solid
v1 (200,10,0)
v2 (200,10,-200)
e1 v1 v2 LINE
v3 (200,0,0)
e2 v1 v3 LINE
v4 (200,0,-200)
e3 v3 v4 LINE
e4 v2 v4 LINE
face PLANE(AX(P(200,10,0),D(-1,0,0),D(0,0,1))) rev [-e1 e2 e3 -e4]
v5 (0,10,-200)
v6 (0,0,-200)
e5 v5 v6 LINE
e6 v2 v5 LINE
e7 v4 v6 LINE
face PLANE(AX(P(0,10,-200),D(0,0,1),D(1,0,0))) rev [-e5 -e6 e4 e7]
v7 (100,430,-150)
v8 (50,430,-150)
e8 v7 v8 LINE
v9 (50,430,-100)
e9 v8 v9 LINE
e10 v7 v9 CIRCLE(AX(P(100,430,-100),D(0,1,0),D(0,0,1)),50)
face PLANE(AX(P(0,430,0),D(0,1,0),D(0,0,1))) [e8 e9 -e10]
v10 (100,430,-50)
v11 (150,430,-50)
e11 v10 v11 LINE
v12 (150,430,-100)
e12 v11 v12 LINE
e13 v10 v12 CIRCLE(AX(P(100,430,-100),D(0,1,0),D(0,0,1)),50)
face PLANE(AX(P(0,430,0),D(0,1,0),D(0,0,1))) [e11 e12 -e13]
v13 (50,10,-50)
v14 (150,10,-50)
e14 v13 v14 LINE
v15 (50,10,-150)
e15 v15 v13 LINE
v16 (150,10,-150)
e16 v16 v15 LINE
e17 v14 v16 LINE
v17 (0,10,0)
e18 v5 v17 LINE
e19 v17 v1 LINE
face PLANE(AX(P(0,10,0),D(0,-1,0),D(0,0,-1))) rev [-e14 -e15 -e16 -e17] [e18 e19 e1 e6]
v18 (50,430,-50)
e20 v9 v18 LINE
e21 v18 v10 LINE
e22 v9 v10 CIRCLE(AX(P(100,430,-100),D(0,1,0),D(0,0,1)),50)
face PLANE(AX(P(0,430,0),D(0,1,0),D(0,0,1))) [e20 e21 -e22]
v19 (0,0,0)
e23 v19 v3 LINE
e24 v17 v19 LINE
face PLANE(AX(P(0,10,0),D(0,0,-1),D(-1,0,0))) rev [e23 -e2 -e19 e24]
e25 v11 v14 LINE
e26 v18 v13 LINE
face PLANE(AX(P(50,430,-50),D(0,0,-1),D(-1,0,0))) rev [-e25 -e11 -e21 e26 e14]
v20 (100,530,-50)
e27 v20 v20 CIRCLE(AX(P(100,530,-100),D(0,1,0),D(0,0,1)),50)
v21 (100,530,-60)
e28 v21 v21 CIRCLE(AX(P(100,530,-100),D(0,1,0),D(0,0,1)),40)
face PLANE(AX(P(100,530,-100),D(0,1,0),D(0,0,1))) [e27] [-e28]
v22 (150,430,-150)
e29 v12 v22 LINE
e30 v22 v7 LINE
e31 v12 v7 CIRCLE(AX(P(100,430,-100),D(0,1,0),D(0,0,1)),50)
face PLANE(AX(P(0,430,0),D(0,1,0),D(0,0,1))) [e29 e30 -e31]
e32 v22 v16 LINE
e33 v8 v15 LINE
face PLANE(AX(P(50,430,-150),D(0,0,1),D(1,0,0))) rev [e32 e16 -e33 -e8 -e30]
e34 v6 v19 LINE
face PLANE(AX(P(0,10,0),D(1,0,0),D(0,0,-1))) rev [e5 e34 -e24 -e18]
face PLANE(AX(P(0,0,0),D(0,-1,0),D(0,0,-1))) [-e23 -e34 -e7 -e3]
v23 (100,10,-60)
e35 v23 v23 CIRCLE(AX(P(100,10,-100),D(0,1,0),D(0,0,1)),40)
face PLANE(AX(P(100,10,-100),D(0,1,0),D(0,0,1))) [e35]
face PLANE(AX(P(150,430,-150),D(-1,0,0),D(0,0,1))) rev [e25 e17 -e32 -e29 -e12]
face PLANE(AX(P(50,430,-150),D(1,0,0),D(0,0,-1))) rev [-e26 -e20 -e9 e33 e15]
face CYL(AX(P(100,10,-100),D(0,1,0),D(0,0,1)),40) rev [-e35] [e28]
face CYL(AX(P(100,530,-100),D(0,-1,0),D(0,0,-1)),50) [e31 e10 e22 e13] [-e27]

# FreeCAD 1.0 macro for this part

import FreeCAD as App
import Part
import Sketcher
Q = App.Units.Quantity

doc = App.newDocument("Part")
body = doc.addObject("PartDesign::Body", "Body")

# Sketch on XZ plane
sketch1 = body.newObject("Sketcher::SketchObject", "Sketch")
sketch1.AttachmentSupport = (doc.getObject("XZ_Plane"), [""])
sketch1.MapMode = "FlatFace"
sketch1.addGeometry(Part.LineSegment(App.Vector(0, -200, 0), App.Vector(0, 0, 0)), False)
sketch1.addGeometry(Part.LineSegment(App.Vector(0, 0, 0), App.Vector(200, 0, 0)), False)
sketch1.addGeometry(Part.LineSegment(App.Vector(200, 0, 0), App.Vector(200, -200, 0)), False)
sketch1.addGeometry(Part.LineSegment(App.Vector(200, -200, 0), App.Vector(0, -200, 0)), False)
sketch1.addConstraint(Sketcher.Constraint("Coincident", 0, 2, 1, 1))
sketch1.addConstraint(Sketcher.Constraint("Coincident", 1, 2, 2, 1))
sketch1.addConstraint(Sketcher.Constraint("Coincident", 2, 2, 3, 1))
sketch1.addConstraint(Sketcher.Constraint("Coincident", 3, 2, 0, 1))
sketch1.addConstraint(Sketcher.Constraint("Vertical", 0))
sketch1.addConstraint(Sketcher.Constraint("Horizontal", 1))
sketch1.addConstraint(Sketcher.Constraint("Vertical", 2))
sketch1.addConstraint(Sketcher.Constraint("Horizontal", 3))
sketch1.addConstraint(Sketcher.Constraint("Coincident", 0, 2, -1, 1))
sketch1.addConstraint(Sketcher.Constraint("Equal", 3, 0))
sketch1.addConstraint(Sketcher.Constraint("DistanceX", 1, 1, 1, 2, Q("200 mm")))
pad1 = body.newObject("PartDesign::Pad", "Pad")
pad1.Profile = sketch1
pad1.Length = 10
pad1.Reversed = True

# Sketch on XZ plane
sketch2 = body.newObject("Sketcher::SketchObject", "Sketch001")
sketch2.AttachmentSupport = (doc.getObject("XZ_Plane"), [""])
sketch2.MapMode = "FlatFace"
sketch2.AttachmentOffset = App.Placement(App.Vector(0, 0, -10), App.Rotation())
sketch2.addGeometry(Part.LineSegment(App.Vector(50, -150, 0), App.Vector(50, -50, 0)), False)
sketch2.addGeometry(Part.LineSegment(App.Vector(50, -50, 0), App.Vector(150, -50, 0)), False)
sketch2.addGeometry(Part.LineSegment(App.Vector(150, -50, 0), App.Vector(150, -150, 0)), False)
sketch2.addGeometry(Part.LineSegment(App.Vector(150, -150, 0), App.Vector(50, -150, 0)), False)
sketch2.addConstraint(Sketcher.Constraint("Coincident", 0, 2, 1, 1))
sketch2.addConstraint(Sketcher.Constraint("Coincident", 1, 2, 2, 1))
sketch2.addConstraint(Sketcher.Constraint("Coincident", 2, 2, 3, 1))
sketch2.addConstraint(Sketcher.Constraint("Coincident", 3, 2, 0, 1))
sketch2.addConstraint(Sketcher.Constraint("Vertical", 0))
sketch2.addConstraint(Sketcher.Constraint("Horizontal", 1))
sketch2.addConstraint(Sketcher.Constraint("Vertical", 2))
sketch2.addConstraint(Sketcher.Constraint("Horizontal", 3))
sketch2.addConstraint(Sketcher.Constraint("Equal", 3, 0))
sketch2.addConstraint(Sketcher.Constraint("DistanceX", 1, 1, 1, 2, Q("100 mm")))
sketch2.addConstraint(Sketcher.Constraint("DistanceX", -1, 1, 0, 2, Q("50 mm")))
sketch2.addConstraint(Sketcher.Constraint("DistanceY", 0, 2, -1, 1, Q("50 mm")))
pad2 = body.newObject("PartDesign::Pad", "Pad001")
pad2.Profile = sketch2
pad2.Length = 420
pad2.Reversed = True

# Sketch on XZ plane
sketch3 = body.newObject("Sketcher::SketchObject", "Sketch002")
sketch3.AttachmentSupport = (doc.getObject("XZ_Plane"), [""])
sketch3.MapMode = "FlatFace"
sketch3.AttachmentOffset = App.Placement(App.Vector(0, 0, -430), App.Rotation())
sketch3.addGeometry(Part.Circle(App.Vector(100, -100, 0), App.Vector(0, 0, 1), 40), False)
sketch3.addConstraint(Sketcher.Constraint("Diameter", 0, Q("80 mm")))
sketch3.addConstraint(Sketcher.Constraint("DistanceX", -1, 1, 0, 3, Q("100 mm")))
sketch3.addConstraint(Sketcher.Constraint("DistanceY", 0, 3, -1, 1, Q("100 mm")))
pocket1 = body.newObject("PartDesign::Pocket", "Pocket")
pocket1.Profile = sketch3
pocket1.Length = 420
pocket1.Reversed = True

# Sketch on XZ plane
sketch4 = body.newObject("Sketcher::SketchObject", "Sketch003")
sketch4.AttachmentSupport = (doc.getObject("XZ_Plane"), [""])
sketch4.MapMode = "FlatFace"
sketch4.AttachmentOffset = App.Placement(App.Vector(0, 0, -530), App.Rotation())
sketch4.addGeometry(Part.Circle(App.Vector(100, -100, 0), App.Vector(0, 0, 1), 50), False)
sketch4.addGeometry(Part.Circle(App.Vector(100, -100, 0), App.Vector(0, 0, 1), 40), False)
sketch4.addConstraint(Sketcher.Constraint("Coincident", 1, 3, 0, 3))
sketch4.addConstraint(Sketcher.Constraint("Diameter", 0, Q("100 mm")))
sketch4.addConstraint(Sketcher.Constraint("Diameter", 1, Q("80 mm")))
sketch4.addConstraint(Sketcher.Constraint("DistanceX", -1, 1, 0, 3, Q("100 mm")))
sketch4.addConstraint(Sketcher.Constraint("DistanceY", 0, 3, -1, 1, Q("100 mm")))
pad3 = body.newObject("PartDesign::Pad", "Pad002")
pad3.Profile = sketch4
pad3.Length = 100

doc.recompute()
